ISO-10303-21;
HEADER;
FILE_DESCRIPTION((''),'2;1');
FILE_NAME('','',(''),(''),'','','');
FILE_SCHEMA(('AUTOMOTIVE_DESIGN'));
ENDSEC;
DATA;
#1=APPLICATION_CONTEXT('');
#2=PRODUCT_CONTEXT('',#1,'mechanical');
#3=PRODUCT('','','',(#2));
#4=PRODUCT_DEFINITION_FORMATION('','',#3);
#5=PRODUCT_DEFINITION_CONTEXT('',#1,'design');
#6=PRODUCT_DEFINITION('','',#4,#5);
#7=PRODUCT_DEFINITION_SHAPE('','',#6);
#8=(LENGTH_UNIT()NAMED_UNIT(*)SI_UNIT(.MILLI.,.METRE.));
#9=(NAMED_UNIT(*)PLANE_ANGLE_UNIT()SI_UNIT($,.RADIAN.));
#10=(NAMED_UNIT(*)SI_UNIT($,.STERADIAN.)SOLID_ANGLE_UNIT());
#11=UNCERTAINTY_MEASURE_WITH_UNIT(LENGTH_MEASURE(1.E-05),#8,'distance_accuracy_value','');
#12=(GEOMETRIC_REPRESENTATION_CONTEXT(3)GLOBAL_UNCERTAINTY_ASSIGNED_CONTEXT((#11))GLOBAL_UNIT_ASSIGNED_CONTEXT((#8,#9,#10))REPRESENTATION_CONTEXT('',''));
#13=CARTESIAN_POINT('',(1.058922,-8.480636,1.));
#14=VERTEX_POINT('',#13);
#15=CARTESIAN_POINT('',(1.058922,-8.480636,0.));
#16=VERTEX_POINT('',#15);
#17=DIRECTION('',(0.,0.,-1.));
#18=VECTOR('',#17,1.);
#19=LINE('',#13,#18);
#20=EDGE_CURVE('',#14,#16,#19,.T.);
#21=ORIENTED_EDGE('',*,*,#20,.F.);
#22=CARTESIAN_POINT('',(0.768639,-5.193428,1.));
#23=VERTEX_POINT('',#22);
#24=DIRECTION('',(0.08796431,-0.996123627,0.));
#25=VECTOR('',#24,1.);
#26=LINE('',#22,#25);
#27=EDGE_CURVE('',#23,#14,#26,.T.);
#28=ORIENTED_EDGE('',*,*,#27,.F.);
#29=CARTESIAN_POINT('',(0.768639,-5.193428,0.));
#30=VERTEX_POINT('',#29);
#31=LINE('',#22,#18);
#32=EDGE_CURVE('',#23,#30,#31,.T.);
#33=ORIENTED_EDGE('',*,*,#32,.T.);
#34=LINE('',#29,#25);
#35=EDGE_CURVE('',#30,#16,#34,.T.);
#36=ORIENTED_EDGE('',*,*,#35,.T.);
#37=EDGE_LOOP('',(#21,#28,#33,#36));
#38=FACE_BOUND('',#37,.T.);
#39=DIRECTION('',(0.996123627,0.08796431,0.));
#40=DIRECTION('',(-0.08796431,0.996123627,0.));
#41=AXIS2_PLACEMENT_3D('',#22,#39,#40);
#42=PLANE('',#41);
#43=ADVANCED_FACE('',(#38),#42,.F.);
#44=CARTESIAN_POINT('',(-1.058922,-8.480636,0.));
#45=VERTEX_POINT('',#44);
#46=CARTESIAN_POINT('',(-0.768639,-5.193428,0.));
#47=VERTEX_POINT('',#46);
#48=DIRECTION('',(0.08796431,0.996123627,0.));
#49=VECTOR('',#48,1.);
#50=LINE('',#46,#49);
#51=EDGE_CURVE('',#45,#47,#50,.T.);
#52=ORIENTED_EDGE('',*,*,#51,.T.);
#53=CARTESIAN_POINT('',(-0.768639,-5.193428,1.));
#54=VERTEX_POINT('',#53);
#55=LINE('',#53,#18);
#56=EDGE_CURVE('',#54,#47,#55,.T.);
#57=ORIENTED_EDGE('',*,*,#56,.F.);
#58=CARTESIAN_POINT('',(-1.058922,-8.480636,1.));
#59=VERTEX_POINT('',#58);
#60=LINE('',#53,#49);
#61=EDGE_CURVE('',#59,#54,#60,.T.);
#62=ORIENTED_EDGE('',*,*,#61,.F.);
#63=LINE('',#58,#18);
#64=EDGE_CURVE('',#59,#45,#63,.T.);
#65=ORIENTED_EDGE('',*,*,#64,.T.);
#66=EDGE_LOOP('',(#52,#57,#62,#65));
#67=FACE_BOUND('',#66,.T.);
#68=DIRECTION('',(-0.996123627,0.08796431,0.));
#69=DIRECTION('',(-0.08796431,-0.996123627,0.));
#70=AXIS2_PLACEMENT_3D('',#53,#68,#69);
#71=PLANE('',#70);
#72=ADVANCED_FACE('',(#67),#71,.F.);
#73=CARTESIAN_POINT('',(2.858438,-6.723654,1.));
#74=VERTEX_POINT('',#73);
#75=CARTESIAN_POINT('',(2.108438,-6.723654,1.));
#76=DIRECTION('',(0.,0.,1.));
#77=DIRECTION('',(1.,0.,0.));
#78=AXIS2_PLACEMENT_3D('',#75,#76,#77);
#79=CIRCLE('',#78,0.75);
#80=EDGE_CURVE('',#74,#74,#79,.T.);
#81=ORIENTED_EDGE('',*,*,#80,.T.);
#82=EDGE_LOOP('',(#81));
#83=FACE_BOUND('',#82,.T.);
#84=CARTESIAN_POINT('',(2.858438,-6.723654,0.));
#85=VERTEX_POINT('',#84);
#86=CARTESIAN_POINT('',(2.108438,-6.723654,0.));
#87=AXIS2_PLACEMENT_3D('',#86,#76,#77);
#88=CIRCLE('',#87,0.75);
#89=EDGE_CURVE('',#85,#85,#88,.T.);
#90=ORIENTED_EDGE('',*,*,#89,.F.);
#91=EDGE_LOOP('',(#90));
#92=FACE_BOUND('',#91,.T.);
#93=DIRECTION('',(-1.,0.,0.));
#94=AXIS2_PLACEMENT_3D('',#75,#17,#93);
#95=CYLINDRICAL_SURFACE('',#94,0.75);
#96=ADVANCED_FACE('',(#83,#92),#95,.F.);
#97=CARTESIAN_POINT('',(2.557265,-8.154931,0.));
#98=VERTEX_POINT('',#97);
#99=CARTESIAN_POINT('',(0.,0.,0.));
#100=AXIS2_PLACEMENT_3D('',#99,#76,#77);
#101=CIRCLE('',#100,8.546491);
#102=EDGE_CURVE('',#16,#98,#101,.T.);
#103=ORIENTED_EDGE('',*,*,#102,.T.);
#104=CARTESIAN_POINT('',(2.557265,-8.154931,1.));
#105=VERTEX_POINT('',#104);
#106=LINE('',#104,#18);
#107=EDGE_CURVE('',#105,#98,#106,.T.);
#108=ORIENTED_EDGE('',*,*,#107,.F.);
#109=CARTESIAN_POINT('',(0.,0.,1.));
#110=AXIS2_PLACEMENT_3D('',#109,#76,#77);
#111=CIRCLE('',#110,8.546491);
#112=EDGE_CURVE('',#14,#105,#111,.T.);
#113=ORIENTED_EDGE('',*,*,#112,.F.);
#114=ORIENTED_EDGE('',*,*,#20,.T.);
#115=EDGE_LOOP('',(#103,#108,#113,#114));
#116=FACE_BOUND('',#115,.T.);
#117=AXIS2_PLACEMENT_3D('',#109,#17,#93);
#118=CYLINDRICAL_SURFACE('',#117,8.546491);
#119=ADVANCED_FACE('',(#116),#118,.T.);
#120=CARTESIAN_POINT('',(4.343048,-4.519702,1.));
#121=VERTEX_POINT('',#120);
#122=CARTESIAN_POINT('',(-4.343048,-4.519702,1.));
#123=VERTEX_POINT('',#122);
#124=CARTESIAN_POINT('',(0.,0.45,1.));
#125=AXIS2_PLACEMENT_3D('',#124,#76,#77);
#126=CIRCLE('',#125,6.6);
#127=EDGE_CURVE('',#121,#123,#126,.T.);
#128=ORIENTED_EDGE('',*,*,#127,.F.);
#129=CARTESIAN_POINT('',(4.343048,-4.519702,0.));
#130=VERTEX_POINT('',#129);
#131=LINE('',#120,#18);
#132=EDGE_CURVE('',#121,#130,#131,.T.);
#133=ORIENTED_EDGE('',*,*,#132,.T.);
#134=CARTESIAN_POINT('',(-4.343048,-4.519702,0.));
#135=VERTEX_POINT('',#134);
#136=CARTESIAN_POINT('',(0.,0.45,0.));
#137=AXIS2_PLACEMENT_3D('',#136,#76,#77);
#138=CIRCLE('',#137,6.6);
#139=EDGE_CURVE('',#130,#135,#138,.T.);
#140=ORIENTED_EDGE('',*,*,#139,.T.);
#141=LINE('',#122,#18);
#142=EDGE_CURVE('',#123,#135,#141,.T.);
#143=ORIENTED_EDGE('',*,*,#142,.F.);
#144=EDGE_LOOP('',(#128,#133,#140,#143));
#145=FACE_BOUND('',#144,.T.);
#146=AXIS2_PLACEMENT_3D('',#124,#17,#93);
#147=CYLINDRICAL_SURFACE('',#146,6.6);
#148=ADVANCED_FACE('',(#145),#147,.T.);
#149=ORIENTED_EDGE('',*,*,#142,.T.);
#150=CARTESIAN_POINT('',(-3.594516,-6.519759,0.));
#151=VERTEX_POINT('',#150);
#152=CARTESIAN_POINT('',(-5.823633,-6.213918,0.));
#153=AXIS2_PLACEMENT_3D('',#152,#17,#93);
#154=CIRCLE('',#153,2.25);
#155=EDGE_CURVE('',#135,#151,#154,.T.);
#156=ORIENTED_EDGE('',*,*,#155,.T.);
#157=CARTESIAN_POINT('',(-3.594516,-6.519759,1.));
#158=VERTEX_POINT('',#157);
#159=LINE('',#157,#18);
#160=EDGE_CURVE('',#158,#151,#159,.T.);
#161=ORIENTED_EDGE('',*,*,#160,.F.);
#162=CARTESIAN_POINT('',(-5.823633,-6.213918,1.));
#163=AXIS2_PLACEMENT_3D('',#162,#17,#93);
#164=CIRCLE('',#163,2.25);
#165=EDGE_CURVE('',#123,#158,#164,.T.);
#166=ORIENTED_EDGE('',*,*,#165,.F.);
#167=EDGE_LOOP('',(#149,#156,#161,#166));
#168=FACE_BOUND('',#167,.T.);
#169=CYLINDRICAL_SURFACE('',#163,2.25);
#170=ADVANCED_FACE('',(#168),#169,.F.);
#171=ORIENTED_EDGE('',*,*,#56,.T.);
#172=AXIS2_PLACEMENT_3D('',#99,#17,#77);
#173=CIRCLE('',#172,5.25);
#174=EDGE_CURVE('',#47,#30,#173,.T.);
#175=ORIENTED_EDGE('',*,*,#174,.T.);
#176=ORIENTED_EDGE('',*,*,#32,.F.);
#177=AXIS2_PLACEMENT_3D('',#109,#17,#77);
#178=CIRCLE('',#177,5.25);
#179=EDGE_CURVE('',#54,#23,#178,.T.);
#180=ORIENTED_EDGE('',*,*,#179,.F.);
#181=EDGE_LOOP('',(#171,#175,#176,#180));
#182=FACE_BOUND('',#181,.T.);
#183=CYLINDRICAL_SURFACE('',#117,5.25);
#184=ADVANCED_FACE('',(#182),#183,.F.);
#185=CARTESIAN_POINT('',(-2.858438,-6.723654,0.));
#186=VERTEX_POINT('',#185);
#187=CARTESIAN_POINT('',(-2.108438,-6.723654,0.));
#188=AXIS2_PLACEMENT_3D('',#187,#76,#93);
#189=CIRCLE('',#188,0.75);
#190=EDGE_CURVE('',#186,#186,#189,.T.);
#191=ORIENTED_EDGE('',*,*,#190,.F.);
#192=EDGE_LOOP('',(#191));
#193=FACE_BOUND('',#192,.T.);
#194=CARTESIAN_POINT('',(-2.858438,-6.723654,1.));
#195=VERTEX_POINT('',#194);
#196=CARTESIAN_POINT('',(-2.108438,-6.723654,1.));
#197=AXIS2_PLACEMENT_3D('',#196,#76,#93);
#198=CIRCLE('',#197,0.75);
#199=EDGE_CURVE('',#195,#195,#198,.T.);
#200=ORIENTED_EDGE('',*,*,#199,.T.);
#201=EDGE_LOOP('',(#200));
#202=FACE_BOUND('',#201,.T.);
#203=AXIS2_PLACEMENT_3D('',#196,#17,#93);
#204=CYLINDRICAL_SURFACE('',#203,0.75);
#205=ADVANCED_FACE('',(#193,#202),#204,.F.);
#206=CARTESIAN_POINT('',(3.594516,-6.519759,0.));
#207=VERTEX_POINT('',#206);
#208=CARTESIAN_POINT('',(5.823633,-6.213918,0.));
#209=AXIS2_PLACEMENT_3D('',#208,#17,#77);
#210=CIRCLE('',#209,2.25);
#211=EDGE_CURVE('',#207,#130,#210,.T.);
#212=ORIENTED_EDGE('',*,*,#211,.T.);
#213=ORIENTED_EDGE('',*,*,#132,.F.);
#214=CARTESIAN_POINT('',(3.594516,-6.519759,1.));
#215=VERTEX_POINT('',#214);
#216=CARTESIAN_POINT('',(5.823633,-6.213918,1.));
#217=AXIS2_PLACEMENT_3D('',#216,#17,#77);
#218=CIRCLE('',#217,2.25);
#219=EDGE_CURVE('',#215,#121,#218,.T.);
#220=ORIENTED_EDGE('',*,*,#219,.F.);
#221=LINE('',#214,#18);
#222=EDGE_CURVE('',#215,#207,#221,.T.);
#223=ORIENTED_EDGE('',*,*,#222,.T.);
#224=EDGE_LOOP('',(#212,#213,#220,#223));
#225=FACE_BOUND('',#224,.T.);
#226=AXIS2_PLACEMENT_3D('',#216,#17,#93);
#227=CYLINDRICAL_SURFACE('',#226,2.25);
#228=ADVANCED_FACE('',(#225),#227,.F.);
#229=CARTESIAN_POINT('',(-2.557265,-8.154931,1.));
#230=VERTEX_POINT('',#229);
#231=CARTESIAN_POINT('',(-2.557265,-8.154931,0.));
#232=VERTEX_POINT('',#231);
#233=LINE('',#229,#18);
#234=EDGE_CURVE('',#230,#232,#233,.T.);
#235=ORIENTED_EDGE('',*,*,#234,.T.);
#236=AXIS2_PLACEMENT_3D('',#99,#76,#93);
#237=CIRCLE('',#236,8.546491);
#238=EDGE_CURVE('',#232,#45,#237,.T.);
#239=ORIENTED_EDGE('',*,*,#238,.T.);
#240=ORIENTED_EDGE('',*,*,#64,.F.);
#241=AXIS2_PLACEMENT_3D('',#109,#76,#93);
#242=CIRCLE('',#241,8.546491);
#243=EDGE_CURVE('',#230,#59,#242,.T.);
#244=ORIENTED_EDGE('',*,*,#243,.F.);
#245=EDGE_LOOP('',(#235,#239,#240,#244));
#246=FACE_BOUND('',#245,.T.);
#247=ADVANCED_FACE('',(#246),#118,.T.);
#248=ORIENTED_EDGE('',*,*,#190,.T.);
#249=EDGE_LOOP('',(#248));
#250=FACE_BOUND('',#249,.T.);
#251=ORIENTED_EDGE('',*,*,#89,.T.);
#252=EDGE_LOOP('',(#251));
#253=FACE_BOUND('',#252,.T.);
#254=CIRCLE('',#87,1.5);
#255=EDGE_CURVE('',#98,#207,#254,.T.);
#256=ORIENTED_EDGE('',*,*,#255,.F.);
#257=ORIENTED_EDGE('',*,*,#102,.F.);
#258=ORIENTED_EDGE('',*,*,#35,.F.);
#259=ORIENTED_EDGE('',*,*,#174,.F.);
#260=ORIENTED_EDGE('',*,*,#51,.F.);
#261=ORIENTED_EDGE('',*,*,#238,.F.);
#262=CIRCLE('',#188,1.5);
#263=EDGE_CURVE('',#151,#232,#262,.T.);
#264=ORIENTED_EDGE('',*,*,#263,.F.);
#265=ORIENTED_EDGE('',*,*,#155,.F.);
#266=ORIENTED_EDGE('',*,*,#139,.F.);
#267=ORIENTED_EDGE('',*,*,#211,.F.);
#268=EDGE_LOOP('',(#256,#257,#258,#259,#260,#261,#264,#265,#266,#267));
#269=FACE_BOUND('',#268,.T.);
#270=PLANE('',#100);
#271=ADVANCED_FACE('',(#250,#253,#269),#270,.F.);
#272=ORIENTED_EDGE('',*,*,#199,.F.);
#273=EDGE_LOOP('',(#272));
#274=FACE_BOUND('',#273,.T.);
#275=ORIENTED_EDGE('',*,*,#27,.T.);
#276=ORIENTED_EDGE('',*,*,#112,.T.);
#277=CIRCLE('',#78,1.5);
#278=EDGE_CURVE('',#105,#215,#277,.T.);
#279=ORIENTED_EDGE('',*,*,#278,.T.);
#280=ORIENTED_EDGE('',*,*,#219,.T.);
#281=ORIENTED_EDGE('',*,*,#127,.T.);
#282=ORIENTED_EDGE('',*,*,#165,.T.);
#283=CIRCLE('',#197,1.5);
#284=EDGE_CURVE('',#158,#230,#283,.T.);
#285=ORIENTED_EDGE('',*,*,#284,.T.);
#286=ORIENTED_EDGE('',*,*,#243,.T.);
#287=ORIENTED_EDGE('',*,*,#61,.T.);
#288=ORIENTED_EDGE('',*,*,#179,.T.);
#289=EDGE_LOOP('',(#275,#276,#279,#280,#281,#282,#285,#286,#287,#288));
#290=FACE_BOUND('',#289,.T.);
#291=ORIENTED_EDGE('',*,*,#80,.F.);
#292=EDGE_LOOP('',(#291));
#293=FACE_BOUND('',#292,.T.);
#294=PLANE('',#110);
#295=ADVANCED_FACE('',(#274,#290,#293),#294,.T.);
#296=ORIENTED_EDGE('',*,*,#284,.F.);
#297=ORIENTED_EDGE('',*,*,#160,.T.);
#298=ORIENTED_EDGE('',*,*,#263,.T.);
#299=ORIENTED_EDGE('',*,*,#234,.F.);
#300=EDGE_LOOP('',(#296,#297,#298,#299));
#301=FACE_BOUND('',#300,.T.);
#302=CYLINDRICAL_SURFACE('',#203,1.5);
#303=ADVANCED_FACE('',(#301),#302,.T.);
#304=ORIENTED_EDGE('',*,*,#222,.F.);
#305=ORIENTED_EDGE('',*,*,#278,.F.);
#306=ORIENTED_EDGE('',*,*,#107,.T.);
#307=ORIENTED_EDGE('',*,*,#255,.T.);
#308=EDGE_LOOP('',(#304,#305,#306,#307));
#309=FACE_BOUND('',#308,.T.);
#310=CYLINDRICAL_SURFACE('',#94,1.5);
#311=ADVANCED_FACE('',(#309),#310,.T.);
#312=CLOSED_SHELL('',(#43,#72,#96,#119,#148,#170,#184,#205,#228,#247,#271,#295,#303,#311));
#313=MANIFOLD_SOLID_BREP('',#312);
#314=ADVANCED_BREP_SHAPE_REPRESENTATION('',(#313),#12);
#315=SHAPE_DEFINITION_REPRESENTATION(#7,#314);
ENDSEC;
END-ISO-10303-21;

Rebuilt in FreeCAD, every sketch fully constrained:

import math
import FreeCAD as App
import Part
import Sketcher
Q = App.Units.Quantity

doc = App.newDocument("Part")
body = doc.addObject("PartDesign::Body", "Body")

sketch1 = body.newObject("Sketcher::SketchObject", "Sketch")
sketch1.AttachmentSupport = (doc.getObject("XY_Plane"), [""])
sketch1.MapMode = "FlatFace"
sketch1.addGeometry([
    Part.LineSegment(App.Vector(0.768639, -5.193428, 0), App.Vector(1.058922, -8.480636, 0)),
    Part.ArcOfCircle(Part.Circle(App.Vector(0, 0, 0), App.Vector(0, 0, 1), 8.54649), math.radians(-82.882686), math.radians(-72.589348)),
    Part.ArcOfCircle(Part.Circle(App.Vector(2.108438, -6.723654, 0), App.Vector(0, 0, 1), 1.5), math.radians(-72.589348), math.radians(7.81237)),
    Part.ArcOfCircle(Part.Circle(App.Vector(5.823633, -6.213918, 0), App.Vector(0, 0, 1), 2.25), math.radians(131.150379), math.radians(187.81237)),
    Part.ArcOfCircle(Part.Circle(App.Vector(0, 0.45, 0), App.Vector(0, 0, 1), 6.6), math.radians(-48.849621), math.radians(228.849621)),
    Part.ArcOfCircle(Part.Circle(App.Vector(-5.823633, -6.213918, 0), App.Vector(0, 0, 1), 2.25), math.radians(-7.81237), math.radians(48.849621)),
    Part.ArcOfCircle(Part.Circle(App.Vector(-2.108438, -6.723654, 0), App.Vector(0, 0, 1), 1.5), math.radians(172.18763), math.radians(252.589348)),
    Part.ArcOfCircle(Part.Circle(App.Vector(0, 0, 0), App.Vector(0, 0, 1), 8.54649), math.radians(-107.410652), math.radians(-97.117314)),
    Part.LineSegment(App.Vector(-1.058922, -8.480636, 0), App.Vector(-0.768639, -5.193428, 0)),
    Part.ArcOfCircle(Part.Circle(App.Vector(0, 0, 0), App.Vector(0, 0, 1), 5.25), math.radians(-81.581207), math.radians(261.581207)),
    Part.Circle(App.Vector(-2.108438, -6.723654, 0), App.Vector(0, 0, 1), 0.75),
    Part.Circle(App.Vector(2.108438, -6.723654, 0), App.Vector(0, 0, 1), 0.75),
], False)
sketch1.addConstraint([
    Sketcher.Constraint("Coincident", 0, 2, 1, 1),
    Sketcher.Constraint("Tangent", 1, 2, 2, 1),
    Sketcher.Constraint("Tangent", 2, 2, 3, 2),
    Sketcher.Constraint("Tangent", 3, 1, 4, 1),
    Sketcher.Constraint("Tangent", 4, 2, 5, 2),
    Sketcher.Constraint("Tangent", 5, 1, 6, 1),
    Sketcher.Constraint("Tangent", 6, 2, 7, 1),
    Sketcher.Constraint("Coincident", 7, 2, 8, 1),
    Sketcher.Constraint("Coincident", 8, 2, 9, 2),
    Sketcher.Constraint("Coincident", 9, 1, 0, 1),
    Sketcher.Constraint("Coincident", 1, 3, -1, 1),
    Sketcher.Constraint("Coincident", 7, 3, -1, 1),
    Sketcher.Constraint("Coincident", 9, 3, -1, 1),
    Sketcher.Constraint("Coincident", 10, 3, 6, 3),
    Sketcher.Constraint("Coincident", 11, 3, 2, 3),
    Sketcher.Constraint("Equal", 3, 5),
    Sketcher.Constraint("Equal", 2, 6),
    Sketcher.Constraint("Equal", 1, 7),
    Sketcher.Constraint("Equal", 10, 11),
    Sketcher.Constraint("Symmetric", 3, 3, 5, 3, -2),
    Sketcher.Constraint("Horizontal", 0, 2, 7, 2),
    Sketcher.Constraint("Horizontal", 8, 2, 9, 1),
    Sketcher.Constraint("Diameter", 10, Q("1.5 mm")),
    Sketcher.Constraint("Radius", 2, Q("1.5 mm")),
    Sketcher.Constraint("Radius", 4, Q("6.6 mm")),
    Sketcher.Constraint("Radius", 3, Q("2.25 mm")),
    Sketcher.Constraint("Radius", 9, Q("5.25 mm")),
    Sketcher.Constraint("Distance", 0, Q("3.3 mm")),
    Sketcher.Constraint("DistanceY", -1, 1, 4, 3, Q("0.45 mm")),
    Sketcher.Constraint("Radius", 1, Q("8.54649 mm")),
    Sketcher.Constraint("DistanceY", 3, 1, -1, 1, Q("4.519702 mm")),
    Sketcher.Constraint("DistanceX", 6, 3, 8, 2, Q("1.339799 mm")),
])
pad1 = body.newObject("PartDesign::Pad", "Pad")
pad1.Profile = sketch1
pad1.Length = 1

doc.recompute()
